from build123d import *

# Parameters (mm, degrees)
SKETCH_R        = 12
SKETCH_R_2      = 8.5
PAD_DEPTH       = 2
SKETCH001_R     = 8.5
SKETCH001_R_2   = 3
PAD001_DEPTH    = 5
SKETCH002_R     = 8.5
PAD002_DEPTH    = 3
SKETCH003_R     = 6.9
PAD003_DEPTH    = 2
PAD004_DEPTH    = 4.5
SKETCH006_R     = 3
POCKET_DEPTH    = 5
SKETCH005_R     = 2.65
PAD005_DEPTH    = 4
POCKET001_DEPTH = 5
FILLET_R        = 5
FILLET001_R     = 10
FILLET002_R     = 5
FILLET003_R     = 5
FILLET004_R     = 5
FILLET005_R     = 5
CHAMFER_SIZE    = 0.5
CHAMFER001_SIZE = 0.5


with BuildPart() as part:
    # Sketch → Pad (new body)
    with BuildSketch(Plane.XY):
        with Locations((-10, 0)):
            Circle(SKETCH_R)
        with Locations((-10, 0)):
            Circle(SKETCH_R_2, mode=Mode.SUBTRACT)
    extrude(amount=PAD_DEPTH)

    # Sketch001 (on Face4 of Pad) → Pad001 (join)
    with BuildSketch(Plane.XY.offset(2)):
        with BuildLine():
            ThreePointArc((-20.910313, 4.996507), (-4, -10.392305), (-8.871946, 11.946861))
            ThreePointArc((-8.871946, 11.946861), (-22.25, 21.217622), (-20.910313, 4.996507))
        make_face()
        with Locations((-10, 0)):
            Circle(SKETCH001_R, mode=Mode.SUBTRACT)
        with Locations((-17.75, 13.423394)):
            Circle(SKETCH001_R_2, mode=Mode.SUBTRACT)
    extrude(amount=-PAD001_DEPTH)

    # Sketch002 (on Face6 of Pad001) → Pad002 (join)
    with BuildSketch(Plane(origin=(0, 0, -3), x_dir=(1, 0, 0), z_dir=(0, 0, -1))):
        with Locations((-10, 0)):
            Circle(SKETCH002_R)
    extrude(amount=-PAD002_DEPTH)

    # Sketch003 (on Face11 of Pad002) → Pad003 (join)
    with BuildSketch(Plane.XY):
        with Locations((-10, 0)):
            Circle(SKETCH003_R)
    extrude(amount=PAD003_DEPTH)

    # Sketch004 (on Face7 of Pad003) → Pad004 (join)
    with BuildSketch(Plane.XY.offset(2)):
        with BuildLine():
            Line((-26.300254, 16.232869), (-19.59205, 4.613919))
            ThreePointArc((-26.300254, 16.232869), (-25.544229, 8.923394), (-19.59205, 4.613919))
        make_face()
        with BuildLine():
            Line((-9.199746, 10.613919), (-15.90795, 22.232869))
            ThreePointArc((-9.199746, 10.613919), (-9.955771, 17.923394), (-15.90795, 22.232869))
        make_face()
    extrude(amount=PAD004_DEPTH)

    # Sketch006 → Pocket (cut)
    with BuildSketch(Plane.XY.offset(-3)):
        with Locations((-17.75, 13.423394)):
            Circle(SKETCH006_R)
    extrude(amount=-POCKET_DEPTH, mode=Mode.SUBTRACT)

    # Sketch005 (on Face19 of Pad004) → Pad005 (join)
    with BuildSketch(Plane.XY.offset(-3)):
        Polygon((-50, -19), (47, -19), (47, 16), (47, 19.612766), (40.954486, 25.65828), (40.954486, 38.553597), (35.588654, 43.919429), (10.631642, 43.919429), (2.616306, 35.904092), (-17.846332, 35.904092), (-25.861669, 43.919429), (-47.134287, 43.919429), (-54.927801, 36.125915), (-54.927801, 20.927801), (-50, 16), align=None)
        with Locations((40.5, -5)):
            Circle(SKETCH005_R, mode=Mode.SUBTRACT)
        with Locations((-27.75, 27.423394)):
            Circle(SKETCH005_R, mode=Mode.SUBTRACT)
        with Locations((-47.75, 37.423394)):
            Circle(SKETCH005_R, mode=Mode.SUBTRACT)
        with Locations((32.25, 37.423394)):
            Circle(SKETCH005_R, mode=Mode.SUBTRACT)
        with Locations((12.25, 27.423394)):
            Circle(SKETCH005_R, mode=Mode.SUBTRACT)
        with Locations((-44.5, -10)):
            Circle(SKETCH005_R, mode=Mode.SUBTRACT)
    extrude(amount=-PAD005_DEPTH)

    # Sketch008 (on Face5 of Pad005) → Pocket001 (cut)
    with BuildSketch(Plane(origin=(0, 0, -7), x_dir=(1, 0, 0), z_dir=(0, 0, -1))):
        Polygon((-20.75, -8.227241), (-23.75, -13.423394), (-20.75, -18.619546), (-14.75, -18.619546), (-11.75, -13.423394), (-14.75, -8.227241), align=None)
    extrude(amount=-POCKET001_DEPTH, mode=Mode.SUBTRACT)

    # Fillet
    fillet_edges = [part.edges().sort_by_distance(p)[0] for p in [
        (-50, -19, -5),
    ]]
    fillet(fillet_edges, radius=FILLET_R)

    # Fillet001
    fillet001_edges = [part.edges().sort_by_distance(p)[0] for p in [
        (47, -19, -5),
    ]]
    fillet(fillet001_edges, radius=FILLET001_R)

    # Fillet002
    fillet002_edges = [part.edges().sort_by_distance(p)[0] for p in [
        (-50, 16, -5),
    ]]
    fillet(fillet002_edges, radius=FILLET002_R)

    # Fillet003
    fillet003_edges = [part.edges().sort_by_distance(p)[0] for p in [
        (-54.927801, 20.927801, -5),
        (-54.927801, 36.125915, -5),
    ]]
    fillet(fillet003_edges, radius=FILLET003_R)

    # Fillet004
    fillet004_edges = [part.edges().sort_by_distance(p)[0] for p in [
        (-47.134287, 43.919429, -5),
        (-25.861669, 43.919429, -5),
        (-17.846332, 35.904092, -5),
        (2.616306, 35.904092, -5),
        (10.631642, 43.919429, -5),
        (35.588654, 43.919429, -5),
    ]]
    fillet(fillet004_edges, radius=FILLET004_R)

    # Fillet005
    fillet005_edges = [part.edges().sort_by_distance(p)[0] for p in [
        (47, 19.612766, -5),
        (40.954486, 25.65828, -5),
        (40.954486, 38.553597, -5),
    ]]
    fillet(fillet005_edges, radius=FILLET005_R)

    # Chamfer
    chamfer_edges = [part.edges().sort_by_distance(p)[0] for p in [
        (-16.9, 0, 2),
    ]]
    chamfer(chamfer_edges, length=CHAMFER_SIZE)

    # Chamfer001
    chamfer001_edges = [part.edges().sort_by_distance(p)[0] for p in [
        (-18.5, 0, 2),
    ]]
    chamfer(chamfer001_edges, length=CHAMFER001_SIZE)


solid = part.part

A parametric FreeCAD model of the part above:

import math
import FreeCAD as App
import Part
import Sketcher
from FreeCAD import Vector
Q = App.Units.Quantity


def edges_at(feature, points):
    """Names of the edges that pass closest to the given points."""
    edges = feature.Shape.Edges
    near = lambda p: min(range(len(edges)), key=lambda i: edges[i].distToShape(Part.Vertex(*p))[0])
    return sorted({f"Edge{near(p) + 1}" for p in points})


def add_polygon(sketch, points):
    """Adds a closed chain of lines whose ends are joined by coincident constraints."""
    first, n = sketch.GeometryCount, len(points)
    for a, b in zip(points, points[1:] + points[:1]):
        sketch.addGeometry(Part.LineSegment(App.Vector(*a, 0), App.Vector(*b, 0)), False)
    for i in range(n):
        sketch.addConstraint(Sketcher.Constraint("Coincident", first + i, 2, first + (i + 1) % n, 1))

doc = App.newDocument("Part")
body = doc.addObject("PartDesign::Body", "Body")

# Sketch on XY plane
sketch1 = body.newObject("Sketcher::SketchObject", "Sketch")
sketch1.AttachmentSupport = (doc.getObject("XY_Plane"), [""])
sketch1.MapMode = "FlatFace"
sketch1.addGeometry([
    Part.Circle(Vector(-10, 0, 0), Vector(0, 0, 1), 12),
    Part.Circle(Vector(-10, 0, 0), Vector(0, 0, 1), 8.5),
], False)
sketch1.addConstraint([
    Sketcher.Constraint("Coincident", 1, 3, 0, 3),
    Sketcher.Constraint("PointOnObject", 0, 3, -1),
    Sketcher.Constraint("Diameter", 0, 24.0),
    Sketcher.Constraint("Diameter", 1, 17.0),
    Sketcher.Constraint("DistanceX", 0, 3, -1, 1, 10.0),
])
pad1 = body.newObject("PartDesign::Pad", "Pad")
pad1.Profile = sketch1
pad1.Length = 2

# Sketch on XY plane
sketch2 = body.newObject("Sketcher::SketchObject", "Sketch001")
sketch2.AttachmentSupport = (doc.getObject("XY_Plane"), [""])
sketch2.MapMode = "FlatFace"
sketch2.AttachmentOffset = App.Placement(Vector(0, 0, 2), App.Rotation())
sketch2.addGeometry([
    Part.ArcOfCircle(Part.Circle(Vector(-10.000001, 0, 0), Vector(0, 0, 1), 12), math.radians(155.394025), math.radians(444.605972)),
    Part.ArcOfCircle(Part.Circle(Vector(-17.75, 13.423394, 0), Vector(0, 0, 1), 9), math.radians(-9.442585), math.radians(249.442582)),
    Part.Circle(Vector(-10, 0, 0), Vector(0, 0, 1), 8.5),
    Part.Circle(Vector(-17.75, 13.423394, 0), Vector(0, 0, 1), 3),
], False)
sketch2.addConstraint([
    Sketcher.Constraint("Coincident", 0, 1, 1, 2),
    Sketcher.Constraint("Coincident", 1, 1, 0, 2),
    Sketcher.Constraint("Coincident", 2, 3, 0, 3),
    Sketcher.Constraint("Coincident", 3, 3, 1, 3),
    Sketcher.Constraint("PointOnObject", 0, 3, -1),
    Sketcher.Constraint("Diameter", 2, 17.0),
    Sketcher.Constraint("Diameter", 3, 6.0),
    Sketcher.Constraint("Radius", 0, 12.0),
    Sketcher.Constraint("Radius", 1, 9.0),
    Sketcher.Constraint("DistanceX", 0, 3, -1, 1, 10.000001),
    Sketcher.Constraint("DistanceX", 1, 3, -1, 1, 17.75),
    Sketcher.Constraint("DistanceY", -1, 1, 1, 3, 13.423394),
])
pad2 = body.newObject("PartDesign::Pad", "Pad001")
pad2.Profile = sketch2
pad2.Length = 5
pad2.Reversed = True

# Sketch on XY plane
sketch3 = body.newObject("Sketcher::SketchObject", "Sketch002")
sketch3.AttachmentSupport = (doc.getObject("XY_Plane"), [""])
sketch3.MapMode = "FlatFace"
sketch3.AttachmentOffset = App.Placement(Vector(0, 0, -3), App.Rotation())
sketch3.addGeometry(Part.Circle(Vector(-10, 0, 0), Vector(0, 0, 1), 8.5), False)
sketch3.addConstraint([
    Sketcher.Constraint("PointOnObject", 0, 3, -1),
    Sketcher.Constraint("Diameter", 0, 17.0),
    Sketcher.Constraint("DistanceX", 0, 3, -1, 1, 10.0),
])
pad3 = body.newObject("PartDesign::Pad", "Pad002")
pad3.Profile = sketch3
pad3.Length = 3

# Sketch on XY plane
sketch4 = body.newObject("Sketcher::SketchObject", "Sketch003")
sketch4.AttachmentSupport = (doc.getObject("XY_Plane"), [""])
sketch4.MapMode = "FlatFace"
sketch4.addGeometry(Part.Circle(Vector(-10, 0, 0), Vector(0, 0, 1), 6.9), False)
sketch4.addConstraint([
    Sketcher.Constraint("PointOnObject", 0, 3, -1),
    Sketcher.Constraint("Diameter", 0, 13.8),
    Sketcher.Constraint("DistanceX", 0, 3, -1, 1, 10.0),
])
pad4 = body.newObject("PartDesign::Pad", "Pad003")
pad4.Profile = sketch4
pad4.Length = 2

# Sketch on XY plane
sketch5 = body.newObject("Sketcher::SketchObject", "Sketch004")
sketch5.AttachmentSupport = (doc.getObject("XY_Plane"), [""])
sketch5.MapMode = "FlatFace"
sketch5.AttachmentOffset = App.Placement(Vector(0, 0, 2), App.Rotation())
sketch5.addGeometry([
    Part.LineSegment(Vector(-19.59205, 4.613919, 0), Vector(-26.300254, 16.232869, 0)),
    Part.ArcOfCircle(Part.Circle(Vector(-17.750001, 13.423393, 0), Vector(0, 0, 1), 8.999999), math.radians(161.810306), math.radians(258.189695)),
    Part.LineSegment(Vector(-15.90795, 22.232869, 0), Vector(-9.199746, 10.613919, 0)),
    Part.ArcOfCircle(Part.Circle(Vector(-17.749999, 13.423395, 0), Vector(0, 0, 1), 8.999999), math.radians(-18.189694), math.radians(78.189695)),
], False)
sketch5.addConstraint([
    Sketcher.Constraint("Coincident", 0, 1, 1, 2),
    Sketcher.Constraint("Coincident", 1, 1, 0, 2),
    Sketcher.Constraint("Coincident", 2, 1, 3, 2),
    Sketcher.Constraint("Coincident", 3, 1, 2, 2),
    Sketcher.Constraint("Coincident", 3, 3, 1, 3),
    Sketcher.Constraint("Equal", 1, 3),
    Sketcher.Constraint("Parallel", 0, 2),
    Sketcher.Constraint("Equal", 0, 2),
    Sketcher.Constraint("Radius", 1, 8.999999),
    Sketcher.Constraint("Angle", 0, Q("120 deg")),
    Sketcher.Constraint("DistanceY", 1, 1, 2, 1, 6.0),
    Sketcher.Constraint("DistanceX", 1, 3, -1, 1, 17.750001),
    Sketcher.Constraint("DistanceY", -1, 1, 0, 1, 4.613919),
])
pad5 = body.newObject("PartDesign::Pad", "Pad004")
pad5.Profile = sketch5
pad5.Length = 4.5

# Sketch on XY plane
sketch6 = body.newObject("Sketcher::SketchObject", "Sketch005")
sketch6.AttachmentSupport = (doc.getObject("XY_Plane"), [""])
sketch6.MapMode = "FlatFace"
sketch6.AttachmentOffset = App.Placement(Vector(0, 0, -3), App.Rotation())
sketch6.addGeometry(Part.Circle(Vector(-17.75, 13.423394, 0), Vector(0, 0, 1), 3), False)
sketch6.addConstraint([
    Sketcher.Constraint("Diameter", 0, 6.0),
    Sketcher.Constraint("DistanceX", 0, 3, -1, 1, 17.75),
    Sketcher.Constraint("DistanceY", -1, 1, 0, 3, 13.423394),
])
pocket1 = body.newObject("PartDesign::Pocket", "Pocket")
pocket1.Profile = sketch6
pocket1.Length = 5

# Sketch on XY plane
sketch7 = body.newObject("Sketcher::SketchObject", "Sketch006")
sketch7.AttachmentSupport = (doc.getObject("XY_Plane"), [""])
sketch7.MapMode = "FlatFace"
sketch7.AttachmentOffset = App.Placement(Vector(0, 0, -3), App.Rotation())
add_polygon(sketch7, [(-50, -19), (47, -19), (47, 19.612766), (40.954486, 25.65828), (40.954486, 38.553597), (35.588654, 43.919429), (10.631642, 43.919429), (2.616306, 35.904092), (-17.846332, 35.904092), (-25.861669, 43.919429), (-47.134287, 43.919429), (-54.927801, 36.125915), (-54.927801, 20.927801), (-50, 16)])  # lines 0-13
sketch7.addGeometry(Part.Circle(Vector(-44.5, -10, 0), Vector(0, 0, 1), 2.65), False)  # 14
sketch7.addGeometry(Part.Circle(Vector(40.5, -5, 0), Vector(0, 0, 1), 2.65), False)  # 15
sketch7.addGeometry(Part.Circle(Vector(-27.75, 27.423394, 0), Vector(0, 0, 1), 2.65), False)  # 16
sketch7.addGeometry(Part.Circle(Vector(-47.75, 37.423394, 0), Vector(0, 0, 1), 2.65), False)  # 17
sketch7.addGeometry(Part.Circle(Vector(12.25, 27.423394, 0), Vector(0, 0, 1), 2.65), False)  # 18
sketch7.addGeometry(Part.Circle(Vector(32.25, 37.423394, 0), Vector(0, 0, 1), 2.65), False)  # 19
sketch7.addConstraint([
    Sketcher.Constraint("Horizontal", 0),
    Sketcher.Constraint("Vertical", 1),
    Sketcher.Constraint("Vertical", 3),
    Sketcher.Constraint("Horizontal", 5),
    Sketcher.Constraint("Horizontal", 7),
    Sketcher.Constraint("Horizontal", 9),
    Sketcher.Constraint("Vertical", 11),
    Sketcher.Constraint("Vertical", 13),
    Sketcher.Constraint("Equal", 14, 15),
    Sketcher.Constraint("Equal", 15, 16),
    Sketcher.Constraint("Equal", 16, 17),
    Sketcher.Constraint("Equal", 17, 18),
    Sketcher.Constraint("Equal", 18, 19),
    Sketcher.Constraint("Parallel", 2, 4),
    Sketcher.Constraint("Perpendicular", 4, 6),
    Sketcher.Constraint("Perpendicular", 6, 8),
    Sketcher.Constraint("Perpendicular", 8, 10),
    Sketcher.Constraint("Perpendicular", 10, 12),
    Sketcher.Constraint("Horizontal", 16, 3, 18, 3),
    Sketcher.Constraint("Horizontal", 17, 3, 19, 3),
    Sketcher.Constraint("Horizontal", 5, 2, 8, 2),
    Sketcher.Constraint("Equal", 6, 8),
    Sketcher.Constraint("Diameter", 14, 5.3),
    Sketcher.Constraint("DistanceX", 0, 1, 0, 2, 97.0),
    Sketcher.Constraint("DistanceY", 13, 2, 13, 1, 35.0),
    Sketcher.Constraint("DistanceY", 14, 3, -1, 1, 10.0),
    Sketcher.Constraint("DistanceY", 15, 3, -1, 1, 5.0),
    Sketcher.Constraint("DistanceX", -1, 1, 0, 2, 47.0),
    Sketcher.Constraint("DistanceY", 0, 2, -1, 1, 19.0),
    Sketcher.Constraint("DistanceX", 14, 3, 15, 3, 85.0),
    Sketcher.Constraint("DistanceX", 17, 3, 16, 3, 20.0),
    Sketcher.Constraint("DistanceY", 16, 3, 17, 3, 10.0),
    Sketcher.Constraint("DistanceX", 16, 3, 18, 3, 40.0),
    Sketcher.Constraint("DistanceX", 18, 3, 19, 3, 20.0),
    Sketcher.Constraint("DistanceX", 14, 3, -1, 1, 44.5),
    Sketcher.Constraint("DistanceX", 16, 3, -1, 1, 27.75),
    Sketcher.Constraint("Distance", 8, 11.335398),
    Sketcher.Constraint("DistanceX", 5, 2, 5, 1, 24.957012),
    Sketcher.Constraint("DistanceX", 9, 2, 9, 1, 21.272618),
    Sketcher.Constraint("DistanceX", 10, 2, -1, 1, 54.927801),
    Sketcher.Constraint("DistanceX", 7, 2, 7, 1, 20.462638),
    Sketcher.Constraint("DistanceY", 1, 1, 1, 2, 38.612766),
    Sketcher.Constraint("DistanceY", 3, 1, 3, 2, 12.895317),
    Sketcher.Constraint("DistanceY", 11, 2, 11, 1, 15.198114),
    Sketcher.Constraint("DistanceY", -1, 1, 2, 2, 25.65828),
    Sketcher.Constraint("DistanceY", 1, 2, 19, 3, 17.810628),
])
pad6 = body.newObject("PartDesign::Pad", "Pad005")
pad6.Profile = sketch7
pad6.Length = 4
pad6.Reversed = True

# Sketch on XY plane
sketch8 = body.newObject("Sketcher::SketchObject", "Sketch007")
sketch8.AttachmentSupport = (doc.getObject("XY_Plane"), [""])
sketch8.MapMode = "FlatFace"
sketch8.AttachmentOffset = App.Placement(Vector(0, 0, -7), App.Rotation())
add_polygon(sketch8, [(-20.75, 8.227241), (-23.75, 13.423394), (-20.75, 18.619546), (-14.75, 18.619546), (-11.75, 13.423394), (-14.75, 8.227241)])  # lines 0-5
sketch8.addConstraint([
    Sketcher.Constraint("Horizontal", 2),
    Sketcher.Constraint("Horizontal", 5),
    Sketcher.Constraint("Parallel", 0, 3),
    Sketcher.Constraint("Parallel", 1, 4),
    Sketcher.Constraint("Horizontal", 0, 2, 3, 2),
    Sketcher.Constraint("Vertical", 2, 2, 4, 2),
    Sketcher.Constraint("Vertical", 1, 2, 5, 2),
    Sketcher.Constraint("DistanceX", 2, 1, 2, 2, 6.0),
    Sketcher.Constraint("Angle", 0, Q("119.999997 deg")),
    Sketcher.Constraint("Distance", 0, 6.0),
    Sketcher.Constraint("DistanceX", 0, 2, -1, 1, 23.75),
    Sketcher.Constraint("DistanceY", -1, 1, 4, 2, 8.227241),
])
pocket2 = body.newObject("PartDesign::Pocket", "Pocket001")
pocket2.Profile = sketch8
pocket2.Length = 5
pocket2.Reversed = True
doc.recompute()

fillet = body.newObject("PartDesign::Fillet", "Fillet")
fillet.Base = (pocket2, edges_at(pocket2, [(-50, -19, -5)]))
fillet.Radius = 5
doc.recompute()

fillet2 = body.newObject("PartDesign::Fillet", "Fillet001")
fillet2.Base = (fillet, edges_at(fillet, [(47, -19, -5)]))
fillet2.Radius = 10
doc.recompute()

fillet3 = body.newObject("PartDesign::Fillet", "Fillet002")
fillet3.Base = (fillet2, edges_at(fillet2, [(-50, 16, -5)]))
fillet3.Radius = 5
doc.recompute()

fillet4 = body.newObject("PartDesign::Fillet", "Fillet003")
fillet4.Base = (fillet3, edges_at(fillet3, [(-54.928, 20.928, -5), (-54.928, 36.126, -5)]))
fillet4.Radius = 5
doc.recompute()

fillet5 = body.newObject("PartDesign::Fillet", "Fillet004")
fillet5.Base = (fillet4, edges_at(fillet4, [
    (-47.134, 43.919, -5),
    (-25.862, 43.919, -5),
    (-17.846, 35.904, -5),
    (2.616, 35.904, -5),
    (10.632, 43.919, -5),
    (35.589, 43.919, -5),
]))
fillet5.Radius = 5
doc.recompute()

fillet6 = body.newObject("PartDesign::Fillet", "Fillet005")
fillet6.Base = (fillet5, edges_at(fillet5, [(47, 19.613, -5), (40.954, 25.658, -5), (40.954, 38.554, -5)]))
fillet6.Radius = 5
doc.recompute()

chamfer = body.newObject("PartDesign::Chamfer", "Chamfer")
chamfer.Base = (fillet6, edges_at(fillet6, [(-16.9, 0, 2)]))
chamfer.Size = 0.5
doc.recompute()

chamfer2 = body.newObject("PartDesign::Chamfer", "Chamfer001")
chamfer2.Base = (chamfer, edges_at(chamfer, [(-18.5, 0, 2)]))
chamfer2.Size = 0.5

doc.recompute()
